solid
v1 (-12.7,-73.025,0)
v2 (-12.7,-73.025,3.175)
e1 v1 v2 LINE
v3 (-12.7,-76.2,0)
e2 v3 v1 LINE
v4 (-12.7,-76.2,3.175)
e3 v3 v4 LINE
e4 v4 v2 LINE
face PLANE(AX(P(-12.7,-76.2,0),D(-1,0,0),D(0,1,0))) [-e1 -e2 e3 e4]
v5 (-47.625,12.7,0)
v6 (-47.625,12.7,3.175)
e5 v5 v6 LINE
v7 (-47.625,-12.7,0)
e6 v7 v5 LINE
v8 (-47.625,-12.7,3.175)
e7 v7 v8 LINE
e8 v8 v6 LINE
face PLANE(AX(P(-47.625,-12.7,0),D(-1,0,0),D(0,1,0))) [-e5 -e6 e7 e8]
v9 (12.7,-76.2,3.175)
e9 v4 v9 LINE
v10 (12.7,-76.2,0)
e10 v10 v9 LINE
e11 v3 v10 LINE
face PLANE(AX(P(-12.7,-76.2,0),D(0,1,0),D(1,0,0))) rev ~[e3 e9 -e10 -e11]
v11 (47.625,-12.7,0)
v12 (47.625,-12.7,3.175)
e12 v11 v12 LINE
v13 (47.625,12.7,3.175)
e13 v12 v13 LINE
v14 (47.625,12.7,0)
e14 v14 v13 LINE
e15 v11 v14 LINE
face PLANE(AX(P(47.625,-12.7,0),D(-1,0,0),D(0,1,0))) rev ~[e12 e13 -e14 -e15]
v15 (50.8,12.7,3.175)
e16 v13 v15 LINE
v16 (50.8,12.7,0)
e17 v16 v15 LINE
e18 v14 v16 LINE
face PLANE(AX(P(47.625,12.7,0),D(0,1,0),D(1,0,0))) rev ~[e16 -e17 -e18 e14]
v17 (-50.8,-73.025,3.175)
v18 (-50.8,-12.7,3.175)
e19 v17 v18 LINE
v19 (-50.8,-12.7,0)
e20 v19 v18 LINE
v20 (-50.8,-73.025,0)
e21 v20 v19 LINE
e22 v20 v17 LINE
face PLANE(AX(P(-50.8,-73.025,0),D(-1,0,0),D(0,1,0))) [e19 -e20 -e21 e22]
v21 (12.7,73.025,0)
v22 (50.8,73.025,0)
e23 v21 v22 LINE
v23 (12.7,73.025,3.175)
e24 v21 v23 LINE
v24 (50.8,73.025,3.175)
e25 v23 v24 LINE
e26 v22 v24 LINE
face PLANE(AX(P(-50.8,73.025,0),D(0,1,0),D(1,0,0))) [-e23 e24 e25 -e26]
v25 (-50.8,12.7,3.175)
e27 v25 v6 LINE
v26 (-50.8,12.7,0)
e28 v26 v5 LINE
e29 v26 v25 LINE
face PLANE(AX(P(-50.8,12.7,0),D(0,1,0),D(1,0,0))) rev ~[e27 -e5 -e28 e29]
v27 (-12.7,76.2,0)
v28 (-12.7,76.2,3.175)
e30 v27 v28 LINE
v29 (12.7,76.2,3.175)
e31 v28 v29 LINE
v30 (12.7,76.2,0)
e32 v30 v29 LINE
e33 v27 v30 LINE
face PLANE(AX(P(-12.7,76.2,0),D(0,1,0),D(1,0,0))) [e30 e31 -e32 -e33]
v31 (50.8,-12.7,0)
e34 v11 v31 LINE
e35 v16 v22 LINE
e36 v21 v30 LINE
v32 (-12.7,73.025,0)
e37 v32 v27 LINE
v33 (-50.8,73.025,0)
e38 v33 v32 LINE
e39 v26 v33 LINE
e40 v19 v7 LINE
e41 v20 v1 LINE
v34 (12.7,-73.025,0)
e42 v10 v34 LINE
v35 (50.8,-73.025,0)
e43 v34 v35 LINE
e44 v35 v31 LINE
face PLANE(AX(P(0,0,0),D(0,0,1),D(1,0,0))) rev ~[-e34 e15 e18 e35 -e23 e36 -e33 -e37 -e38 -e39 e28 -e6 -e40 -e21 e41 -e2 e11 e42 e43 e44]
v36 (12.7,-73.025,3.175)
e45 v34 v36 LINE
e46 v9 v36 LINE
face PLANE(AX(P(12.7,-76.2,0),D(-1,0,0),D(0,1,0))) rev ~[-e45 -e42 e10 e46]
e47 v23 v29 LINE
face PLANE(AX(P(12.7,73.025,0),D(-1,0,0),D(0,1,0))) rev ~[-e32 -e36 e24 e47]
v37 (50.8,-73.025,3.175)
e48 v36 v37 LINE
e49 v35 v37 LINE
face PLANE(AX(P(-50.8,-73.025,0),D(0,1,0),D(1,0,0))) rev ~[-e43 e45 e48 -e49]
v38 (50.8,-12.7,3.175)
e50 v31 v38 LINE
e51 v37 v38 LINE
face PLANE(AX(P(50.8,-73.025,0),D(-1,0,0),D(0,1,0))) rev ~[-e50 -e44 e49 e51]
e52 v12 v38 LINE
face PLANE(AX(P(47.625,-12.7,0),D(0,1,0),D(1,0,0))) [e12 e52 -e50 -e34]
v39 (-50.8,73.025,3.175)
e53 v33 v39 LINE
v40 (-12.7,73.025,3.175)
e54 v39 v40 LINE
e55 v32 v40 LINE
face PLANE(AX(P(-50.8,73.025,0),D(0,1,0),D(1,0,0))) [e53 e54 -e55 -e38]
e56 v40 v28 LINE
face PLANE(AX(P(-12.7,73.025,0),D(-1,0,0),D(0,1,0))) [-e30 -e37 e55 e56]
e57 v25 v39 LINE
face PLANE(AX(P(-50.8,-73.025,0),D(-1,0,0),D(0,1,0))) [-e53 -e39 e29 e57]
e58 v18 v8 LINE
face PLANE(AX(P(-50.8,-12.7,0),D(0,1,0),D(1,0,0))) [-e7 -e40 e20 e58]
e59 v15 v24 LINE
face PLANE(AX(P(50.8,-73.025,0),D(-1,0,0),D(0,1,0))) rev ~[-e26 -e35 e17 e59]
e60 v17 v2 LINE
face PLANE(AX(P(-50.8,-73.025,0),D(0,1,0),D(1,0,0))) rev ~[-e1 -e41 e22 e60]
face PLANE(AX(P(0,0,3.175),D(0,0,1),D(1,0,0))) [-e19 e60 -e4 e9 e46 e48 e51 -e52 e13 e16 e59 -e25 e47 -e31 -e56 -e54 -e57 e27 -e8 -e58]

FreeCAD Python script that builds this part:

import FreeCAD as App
import Part
import Sketcher
from FreeCAD import Vector
Q = App.Units.Quantity

doc = App.newDocument("Part")
body = doc.addObject("PartDesign::Body", "Body")

# Sketch on XY plane
sketch1 = body.newObject("Sketcher::SketchObject", "Sketch")
sketch1.AttachmentSupport = (doc.getObject("XY_Plane"), [""])
sketch1.MapMode = "FlatFace"
sketch1.addGeometry([
    Part.LineSegment(Vector(-51, 73, 0), Vector(-51, -73, 0)),
    Part.LineSegment(Vector(-51, -73, 0), Vector(51, -73, 0)),
    Part.LineSegment(Vector(51, -73, 0), Vector(51, 73, 0)),
    Part.LineSegment(Vector(51, 73, 0), Vector(-51, 73, 0)),
], False)
sketch1.addConstraint([
    Sketcher.Constraint("Coincident", 0, 2, 1, 1),
    Sketcher.Constraint("Coincident", 1, 2, 2, 1),
    Sketcher.Constraint("Coincident", 2, 2, 3, 1),
    Sketcher.Constraint("Coincident", 3, 2, 0, 1),
    Sketcher.Constraint("Vertical", 0),
    Sketcher.Constraint("Horizontal", 1),
    Sketcher.Constraint("Vertical", 2),
    Sketcher.Constraint("Horizontal", 3),
    Sketcher.Constraint("Symmetric", 0, 2, 2, 2, -1, 1),
    Sketcher.Constraint("DistanceX", 1, 1, 1, 2, Q("4 in")),
    Sketcher.Constraint("DistanceY", 0, 2, 0, 1, Q("5.75 in")),
])
pad1 = body.newObject("PartDesign::Pad", "Pad")
pad1.Profile = sketch1
pad1.Length = Q("0.125 in")

# Sketch on XY plane
sketch2 = body.newObject("Sketcher::SketchObject", "Sketch001")
sketch2.AttachmentSupport = (doc.getObject("XY_Plane"), [""])
sketch2.MapMode = "FlatFace"
sketch2.addGeometry([
    Part.LineSegment(Vector(-50.8, 12.7, 0), Vector(-50.8, -12.7, 0)),  # 0
    Part.LineSegment(Vector(-50.8, -12.7, 0), Vector(-47.6, -12.7, 0)),  # 1
    Part.LineSegment(Vector(-47.6, -12.7, 0), Vector(-47.6, 12.7, 0)),  # 2
    Part.LineSegment(Vector(-47.6, 12.7, 0), Vector(-50.8, 12.7, 0)),  # 3
    Part.LineSegment(Vector(47.6, 12.7, 0), Vector(47.6, -12.7, 0)),  # 4
    Part.LineSegment(Vector(47.6, -12.7, 0), Vector(50.8, -12.7, 0)),  # 5
    Part.LineSegment(Vector(50.8, -12.7, 0), Vector(50.8, 12.7, 0)),  # 6
    Part.LineSegment(Vector(50.8, 12.7, 0), Vector(47.6, 12.7, 0)),  # 7
], False)
sketch2.addConstraint([
    Sketcher.Constraint("Coincident", 0, 2, 1, 1),
    Sketcher.Constraint("Coincident", 1, 2, 2, 1),
    Sketcher.Constraint("Coincident", 2, 2, 3, 1),
    Sketcher.Constraint("Coincident", 3, 2, 0, 1),
    Sketcher.Constraint("Coincident", 4, 2, 5, 1),
    Sketcher.Constraint("Coincident", 5, 2, 6, 1),
    Sketcher.Constraint("Coincident", 6, 2, 7, 1),
    Sketcher.Constraint("Coincident", 7, 2, 4, 1),
    Sketcher.Constraint("Vertical", 0),
    Sketcher.Constraint("Horizontal", 1),
    Sketcher.Constraint("Vertical", 2),
    Sketcher.Constraint("Horizontal", 3),
    Sketcher.Constraint("Vertical", 4),
    Sketcher.Constraint("Horizontal", 5),
    Sketcher.Constraint("Vertical", 6),
    Sketcher.Constraint("Horizontal", 7),
    Sketcher.Constraint("Symmetric", 2, 2, 4, 2, -1, 1),
    Sketcher.Constraint("Symmetric", 0, 2, 6, 2, -1, 1),
    Sketcher.Constraint("Horizontal", 1, 2, 4, 2),
    Sketcher.Constraint("DistanceY", 0, 2, 0, 1, Q("1 in")),
    Sketcher.Constraint("DistanceX", 0, 2, -1, 1, Q("2 in")),
    Sketcher.Constraint("DistanceX", 1, 1, 1, 2, Q("0.125 in")),
])
pocket1 = body.newObject("PartDesign::Pocket", "Pocket")
pocket1.Profile = sketch2
pocket1.Length = Q("0.125 in")
pocket1.Reversed = True

# Sketch on XY plane
sketch3 = body.newObject("Sketcher::SketchObject", "Sketch002")
sketch3.AttachmentSupport = (doc.getObject("XY_Plane"), [""])
sketch3.MapMode = "FlatFace"
sketch3.addGeometry([
    Part.LineSegment(Vector(-12.7, 76.2, 0), Vector(-12.7, 73, 0)),  # 0
    Part.LineSegment(Vector(-12.7, 73, 0), Vector(12.7, 73, 0)),  # 1
    Part.LineSegment(Vector(12.7, 73, 0), Vector(12.7, 76.2, 0)),  # 2
    Part.LineSegment(Vector(12.7, 76.2, 0), Vector(-12.7, 76.2, 0)),  # 3
    Part.LineSegment(Vector(-12.7, -73, 0), Vector(-12.7, -76.2, 0)),  # 4
    Part.LineSegment(Vector(-12.7, -76.2, 0), Vector(12.7, -76.2, 0)),  # 5
    Part.LineSegment(Vector(12.7, -76.2, 0), Vector(12.7, -73, 0)),  # 6
    Part.LineSegment(Vector(12.7, -73, 0), Vector(-12.7, -73, 0)),  # 7
], False)
sketch3.addConstraint([
    Sketcher.Constraint("Coincident", 0, 2, 1, 1),
    Sketcher.Constraint("Coincident", 1, 2, 2, 1),
    Sketcher.Constraint("Coincident", 2, 2, 3, 1),
    Sketcher.Constraint("Coincident", 3, 2, 0, 1),
    Sketcher.Constraint("Coincident", 4, 2, 5, 1),
    Sketcher.Constraint("Coincident", 5, 2, 6, 1),
    Sketcher.Constraint("Coincident", 6, 2, 7, 1),
    Sketcher.Constraint("Coincident", 7, 2, 4, 1),
    Sketcher.Constraint("Vertical", 0),
    Sketcher.Constraint("Horizontal", 1),
    Sketcher.Constraint("Vertical", 2),
    Sketcher.Constraint("Horizontal", 3),
    Sketcher.Constraint("Vertical", 4),
    Sketcher.Constraint("Horizontal", 5),
    Sketcher.Constraint("Vertical", 6),
    Sketcher.Constraint("Horizontal", 7),
    Sketcher.Constraint("Symmetric", 2, 2, 4, 2, -1, 1),
    Sketcher.Constraint("Symmetric", 0, 2, 6, 2, -1, 1),
    Sketcher.Constraint("Vertical", 3, 2, 4, 2),
    Sketcher.Constraint("DistanceX", 1, 1, 1, 2, Q("1 in")),
    Sketcher.Constraint("DistanceY", -1, 1, 2, 2, Q("3 in")),
    Sketcher.Constraint("DistanceY", 0, 2, 0, 1, Q("0.125 in")),
])
pad2 = body.newObject("PartDesign::Pad", "Pad001")
pad2.Profile = sketch3
pad2.Length = Q("0.125 in")

doc.recompute()
